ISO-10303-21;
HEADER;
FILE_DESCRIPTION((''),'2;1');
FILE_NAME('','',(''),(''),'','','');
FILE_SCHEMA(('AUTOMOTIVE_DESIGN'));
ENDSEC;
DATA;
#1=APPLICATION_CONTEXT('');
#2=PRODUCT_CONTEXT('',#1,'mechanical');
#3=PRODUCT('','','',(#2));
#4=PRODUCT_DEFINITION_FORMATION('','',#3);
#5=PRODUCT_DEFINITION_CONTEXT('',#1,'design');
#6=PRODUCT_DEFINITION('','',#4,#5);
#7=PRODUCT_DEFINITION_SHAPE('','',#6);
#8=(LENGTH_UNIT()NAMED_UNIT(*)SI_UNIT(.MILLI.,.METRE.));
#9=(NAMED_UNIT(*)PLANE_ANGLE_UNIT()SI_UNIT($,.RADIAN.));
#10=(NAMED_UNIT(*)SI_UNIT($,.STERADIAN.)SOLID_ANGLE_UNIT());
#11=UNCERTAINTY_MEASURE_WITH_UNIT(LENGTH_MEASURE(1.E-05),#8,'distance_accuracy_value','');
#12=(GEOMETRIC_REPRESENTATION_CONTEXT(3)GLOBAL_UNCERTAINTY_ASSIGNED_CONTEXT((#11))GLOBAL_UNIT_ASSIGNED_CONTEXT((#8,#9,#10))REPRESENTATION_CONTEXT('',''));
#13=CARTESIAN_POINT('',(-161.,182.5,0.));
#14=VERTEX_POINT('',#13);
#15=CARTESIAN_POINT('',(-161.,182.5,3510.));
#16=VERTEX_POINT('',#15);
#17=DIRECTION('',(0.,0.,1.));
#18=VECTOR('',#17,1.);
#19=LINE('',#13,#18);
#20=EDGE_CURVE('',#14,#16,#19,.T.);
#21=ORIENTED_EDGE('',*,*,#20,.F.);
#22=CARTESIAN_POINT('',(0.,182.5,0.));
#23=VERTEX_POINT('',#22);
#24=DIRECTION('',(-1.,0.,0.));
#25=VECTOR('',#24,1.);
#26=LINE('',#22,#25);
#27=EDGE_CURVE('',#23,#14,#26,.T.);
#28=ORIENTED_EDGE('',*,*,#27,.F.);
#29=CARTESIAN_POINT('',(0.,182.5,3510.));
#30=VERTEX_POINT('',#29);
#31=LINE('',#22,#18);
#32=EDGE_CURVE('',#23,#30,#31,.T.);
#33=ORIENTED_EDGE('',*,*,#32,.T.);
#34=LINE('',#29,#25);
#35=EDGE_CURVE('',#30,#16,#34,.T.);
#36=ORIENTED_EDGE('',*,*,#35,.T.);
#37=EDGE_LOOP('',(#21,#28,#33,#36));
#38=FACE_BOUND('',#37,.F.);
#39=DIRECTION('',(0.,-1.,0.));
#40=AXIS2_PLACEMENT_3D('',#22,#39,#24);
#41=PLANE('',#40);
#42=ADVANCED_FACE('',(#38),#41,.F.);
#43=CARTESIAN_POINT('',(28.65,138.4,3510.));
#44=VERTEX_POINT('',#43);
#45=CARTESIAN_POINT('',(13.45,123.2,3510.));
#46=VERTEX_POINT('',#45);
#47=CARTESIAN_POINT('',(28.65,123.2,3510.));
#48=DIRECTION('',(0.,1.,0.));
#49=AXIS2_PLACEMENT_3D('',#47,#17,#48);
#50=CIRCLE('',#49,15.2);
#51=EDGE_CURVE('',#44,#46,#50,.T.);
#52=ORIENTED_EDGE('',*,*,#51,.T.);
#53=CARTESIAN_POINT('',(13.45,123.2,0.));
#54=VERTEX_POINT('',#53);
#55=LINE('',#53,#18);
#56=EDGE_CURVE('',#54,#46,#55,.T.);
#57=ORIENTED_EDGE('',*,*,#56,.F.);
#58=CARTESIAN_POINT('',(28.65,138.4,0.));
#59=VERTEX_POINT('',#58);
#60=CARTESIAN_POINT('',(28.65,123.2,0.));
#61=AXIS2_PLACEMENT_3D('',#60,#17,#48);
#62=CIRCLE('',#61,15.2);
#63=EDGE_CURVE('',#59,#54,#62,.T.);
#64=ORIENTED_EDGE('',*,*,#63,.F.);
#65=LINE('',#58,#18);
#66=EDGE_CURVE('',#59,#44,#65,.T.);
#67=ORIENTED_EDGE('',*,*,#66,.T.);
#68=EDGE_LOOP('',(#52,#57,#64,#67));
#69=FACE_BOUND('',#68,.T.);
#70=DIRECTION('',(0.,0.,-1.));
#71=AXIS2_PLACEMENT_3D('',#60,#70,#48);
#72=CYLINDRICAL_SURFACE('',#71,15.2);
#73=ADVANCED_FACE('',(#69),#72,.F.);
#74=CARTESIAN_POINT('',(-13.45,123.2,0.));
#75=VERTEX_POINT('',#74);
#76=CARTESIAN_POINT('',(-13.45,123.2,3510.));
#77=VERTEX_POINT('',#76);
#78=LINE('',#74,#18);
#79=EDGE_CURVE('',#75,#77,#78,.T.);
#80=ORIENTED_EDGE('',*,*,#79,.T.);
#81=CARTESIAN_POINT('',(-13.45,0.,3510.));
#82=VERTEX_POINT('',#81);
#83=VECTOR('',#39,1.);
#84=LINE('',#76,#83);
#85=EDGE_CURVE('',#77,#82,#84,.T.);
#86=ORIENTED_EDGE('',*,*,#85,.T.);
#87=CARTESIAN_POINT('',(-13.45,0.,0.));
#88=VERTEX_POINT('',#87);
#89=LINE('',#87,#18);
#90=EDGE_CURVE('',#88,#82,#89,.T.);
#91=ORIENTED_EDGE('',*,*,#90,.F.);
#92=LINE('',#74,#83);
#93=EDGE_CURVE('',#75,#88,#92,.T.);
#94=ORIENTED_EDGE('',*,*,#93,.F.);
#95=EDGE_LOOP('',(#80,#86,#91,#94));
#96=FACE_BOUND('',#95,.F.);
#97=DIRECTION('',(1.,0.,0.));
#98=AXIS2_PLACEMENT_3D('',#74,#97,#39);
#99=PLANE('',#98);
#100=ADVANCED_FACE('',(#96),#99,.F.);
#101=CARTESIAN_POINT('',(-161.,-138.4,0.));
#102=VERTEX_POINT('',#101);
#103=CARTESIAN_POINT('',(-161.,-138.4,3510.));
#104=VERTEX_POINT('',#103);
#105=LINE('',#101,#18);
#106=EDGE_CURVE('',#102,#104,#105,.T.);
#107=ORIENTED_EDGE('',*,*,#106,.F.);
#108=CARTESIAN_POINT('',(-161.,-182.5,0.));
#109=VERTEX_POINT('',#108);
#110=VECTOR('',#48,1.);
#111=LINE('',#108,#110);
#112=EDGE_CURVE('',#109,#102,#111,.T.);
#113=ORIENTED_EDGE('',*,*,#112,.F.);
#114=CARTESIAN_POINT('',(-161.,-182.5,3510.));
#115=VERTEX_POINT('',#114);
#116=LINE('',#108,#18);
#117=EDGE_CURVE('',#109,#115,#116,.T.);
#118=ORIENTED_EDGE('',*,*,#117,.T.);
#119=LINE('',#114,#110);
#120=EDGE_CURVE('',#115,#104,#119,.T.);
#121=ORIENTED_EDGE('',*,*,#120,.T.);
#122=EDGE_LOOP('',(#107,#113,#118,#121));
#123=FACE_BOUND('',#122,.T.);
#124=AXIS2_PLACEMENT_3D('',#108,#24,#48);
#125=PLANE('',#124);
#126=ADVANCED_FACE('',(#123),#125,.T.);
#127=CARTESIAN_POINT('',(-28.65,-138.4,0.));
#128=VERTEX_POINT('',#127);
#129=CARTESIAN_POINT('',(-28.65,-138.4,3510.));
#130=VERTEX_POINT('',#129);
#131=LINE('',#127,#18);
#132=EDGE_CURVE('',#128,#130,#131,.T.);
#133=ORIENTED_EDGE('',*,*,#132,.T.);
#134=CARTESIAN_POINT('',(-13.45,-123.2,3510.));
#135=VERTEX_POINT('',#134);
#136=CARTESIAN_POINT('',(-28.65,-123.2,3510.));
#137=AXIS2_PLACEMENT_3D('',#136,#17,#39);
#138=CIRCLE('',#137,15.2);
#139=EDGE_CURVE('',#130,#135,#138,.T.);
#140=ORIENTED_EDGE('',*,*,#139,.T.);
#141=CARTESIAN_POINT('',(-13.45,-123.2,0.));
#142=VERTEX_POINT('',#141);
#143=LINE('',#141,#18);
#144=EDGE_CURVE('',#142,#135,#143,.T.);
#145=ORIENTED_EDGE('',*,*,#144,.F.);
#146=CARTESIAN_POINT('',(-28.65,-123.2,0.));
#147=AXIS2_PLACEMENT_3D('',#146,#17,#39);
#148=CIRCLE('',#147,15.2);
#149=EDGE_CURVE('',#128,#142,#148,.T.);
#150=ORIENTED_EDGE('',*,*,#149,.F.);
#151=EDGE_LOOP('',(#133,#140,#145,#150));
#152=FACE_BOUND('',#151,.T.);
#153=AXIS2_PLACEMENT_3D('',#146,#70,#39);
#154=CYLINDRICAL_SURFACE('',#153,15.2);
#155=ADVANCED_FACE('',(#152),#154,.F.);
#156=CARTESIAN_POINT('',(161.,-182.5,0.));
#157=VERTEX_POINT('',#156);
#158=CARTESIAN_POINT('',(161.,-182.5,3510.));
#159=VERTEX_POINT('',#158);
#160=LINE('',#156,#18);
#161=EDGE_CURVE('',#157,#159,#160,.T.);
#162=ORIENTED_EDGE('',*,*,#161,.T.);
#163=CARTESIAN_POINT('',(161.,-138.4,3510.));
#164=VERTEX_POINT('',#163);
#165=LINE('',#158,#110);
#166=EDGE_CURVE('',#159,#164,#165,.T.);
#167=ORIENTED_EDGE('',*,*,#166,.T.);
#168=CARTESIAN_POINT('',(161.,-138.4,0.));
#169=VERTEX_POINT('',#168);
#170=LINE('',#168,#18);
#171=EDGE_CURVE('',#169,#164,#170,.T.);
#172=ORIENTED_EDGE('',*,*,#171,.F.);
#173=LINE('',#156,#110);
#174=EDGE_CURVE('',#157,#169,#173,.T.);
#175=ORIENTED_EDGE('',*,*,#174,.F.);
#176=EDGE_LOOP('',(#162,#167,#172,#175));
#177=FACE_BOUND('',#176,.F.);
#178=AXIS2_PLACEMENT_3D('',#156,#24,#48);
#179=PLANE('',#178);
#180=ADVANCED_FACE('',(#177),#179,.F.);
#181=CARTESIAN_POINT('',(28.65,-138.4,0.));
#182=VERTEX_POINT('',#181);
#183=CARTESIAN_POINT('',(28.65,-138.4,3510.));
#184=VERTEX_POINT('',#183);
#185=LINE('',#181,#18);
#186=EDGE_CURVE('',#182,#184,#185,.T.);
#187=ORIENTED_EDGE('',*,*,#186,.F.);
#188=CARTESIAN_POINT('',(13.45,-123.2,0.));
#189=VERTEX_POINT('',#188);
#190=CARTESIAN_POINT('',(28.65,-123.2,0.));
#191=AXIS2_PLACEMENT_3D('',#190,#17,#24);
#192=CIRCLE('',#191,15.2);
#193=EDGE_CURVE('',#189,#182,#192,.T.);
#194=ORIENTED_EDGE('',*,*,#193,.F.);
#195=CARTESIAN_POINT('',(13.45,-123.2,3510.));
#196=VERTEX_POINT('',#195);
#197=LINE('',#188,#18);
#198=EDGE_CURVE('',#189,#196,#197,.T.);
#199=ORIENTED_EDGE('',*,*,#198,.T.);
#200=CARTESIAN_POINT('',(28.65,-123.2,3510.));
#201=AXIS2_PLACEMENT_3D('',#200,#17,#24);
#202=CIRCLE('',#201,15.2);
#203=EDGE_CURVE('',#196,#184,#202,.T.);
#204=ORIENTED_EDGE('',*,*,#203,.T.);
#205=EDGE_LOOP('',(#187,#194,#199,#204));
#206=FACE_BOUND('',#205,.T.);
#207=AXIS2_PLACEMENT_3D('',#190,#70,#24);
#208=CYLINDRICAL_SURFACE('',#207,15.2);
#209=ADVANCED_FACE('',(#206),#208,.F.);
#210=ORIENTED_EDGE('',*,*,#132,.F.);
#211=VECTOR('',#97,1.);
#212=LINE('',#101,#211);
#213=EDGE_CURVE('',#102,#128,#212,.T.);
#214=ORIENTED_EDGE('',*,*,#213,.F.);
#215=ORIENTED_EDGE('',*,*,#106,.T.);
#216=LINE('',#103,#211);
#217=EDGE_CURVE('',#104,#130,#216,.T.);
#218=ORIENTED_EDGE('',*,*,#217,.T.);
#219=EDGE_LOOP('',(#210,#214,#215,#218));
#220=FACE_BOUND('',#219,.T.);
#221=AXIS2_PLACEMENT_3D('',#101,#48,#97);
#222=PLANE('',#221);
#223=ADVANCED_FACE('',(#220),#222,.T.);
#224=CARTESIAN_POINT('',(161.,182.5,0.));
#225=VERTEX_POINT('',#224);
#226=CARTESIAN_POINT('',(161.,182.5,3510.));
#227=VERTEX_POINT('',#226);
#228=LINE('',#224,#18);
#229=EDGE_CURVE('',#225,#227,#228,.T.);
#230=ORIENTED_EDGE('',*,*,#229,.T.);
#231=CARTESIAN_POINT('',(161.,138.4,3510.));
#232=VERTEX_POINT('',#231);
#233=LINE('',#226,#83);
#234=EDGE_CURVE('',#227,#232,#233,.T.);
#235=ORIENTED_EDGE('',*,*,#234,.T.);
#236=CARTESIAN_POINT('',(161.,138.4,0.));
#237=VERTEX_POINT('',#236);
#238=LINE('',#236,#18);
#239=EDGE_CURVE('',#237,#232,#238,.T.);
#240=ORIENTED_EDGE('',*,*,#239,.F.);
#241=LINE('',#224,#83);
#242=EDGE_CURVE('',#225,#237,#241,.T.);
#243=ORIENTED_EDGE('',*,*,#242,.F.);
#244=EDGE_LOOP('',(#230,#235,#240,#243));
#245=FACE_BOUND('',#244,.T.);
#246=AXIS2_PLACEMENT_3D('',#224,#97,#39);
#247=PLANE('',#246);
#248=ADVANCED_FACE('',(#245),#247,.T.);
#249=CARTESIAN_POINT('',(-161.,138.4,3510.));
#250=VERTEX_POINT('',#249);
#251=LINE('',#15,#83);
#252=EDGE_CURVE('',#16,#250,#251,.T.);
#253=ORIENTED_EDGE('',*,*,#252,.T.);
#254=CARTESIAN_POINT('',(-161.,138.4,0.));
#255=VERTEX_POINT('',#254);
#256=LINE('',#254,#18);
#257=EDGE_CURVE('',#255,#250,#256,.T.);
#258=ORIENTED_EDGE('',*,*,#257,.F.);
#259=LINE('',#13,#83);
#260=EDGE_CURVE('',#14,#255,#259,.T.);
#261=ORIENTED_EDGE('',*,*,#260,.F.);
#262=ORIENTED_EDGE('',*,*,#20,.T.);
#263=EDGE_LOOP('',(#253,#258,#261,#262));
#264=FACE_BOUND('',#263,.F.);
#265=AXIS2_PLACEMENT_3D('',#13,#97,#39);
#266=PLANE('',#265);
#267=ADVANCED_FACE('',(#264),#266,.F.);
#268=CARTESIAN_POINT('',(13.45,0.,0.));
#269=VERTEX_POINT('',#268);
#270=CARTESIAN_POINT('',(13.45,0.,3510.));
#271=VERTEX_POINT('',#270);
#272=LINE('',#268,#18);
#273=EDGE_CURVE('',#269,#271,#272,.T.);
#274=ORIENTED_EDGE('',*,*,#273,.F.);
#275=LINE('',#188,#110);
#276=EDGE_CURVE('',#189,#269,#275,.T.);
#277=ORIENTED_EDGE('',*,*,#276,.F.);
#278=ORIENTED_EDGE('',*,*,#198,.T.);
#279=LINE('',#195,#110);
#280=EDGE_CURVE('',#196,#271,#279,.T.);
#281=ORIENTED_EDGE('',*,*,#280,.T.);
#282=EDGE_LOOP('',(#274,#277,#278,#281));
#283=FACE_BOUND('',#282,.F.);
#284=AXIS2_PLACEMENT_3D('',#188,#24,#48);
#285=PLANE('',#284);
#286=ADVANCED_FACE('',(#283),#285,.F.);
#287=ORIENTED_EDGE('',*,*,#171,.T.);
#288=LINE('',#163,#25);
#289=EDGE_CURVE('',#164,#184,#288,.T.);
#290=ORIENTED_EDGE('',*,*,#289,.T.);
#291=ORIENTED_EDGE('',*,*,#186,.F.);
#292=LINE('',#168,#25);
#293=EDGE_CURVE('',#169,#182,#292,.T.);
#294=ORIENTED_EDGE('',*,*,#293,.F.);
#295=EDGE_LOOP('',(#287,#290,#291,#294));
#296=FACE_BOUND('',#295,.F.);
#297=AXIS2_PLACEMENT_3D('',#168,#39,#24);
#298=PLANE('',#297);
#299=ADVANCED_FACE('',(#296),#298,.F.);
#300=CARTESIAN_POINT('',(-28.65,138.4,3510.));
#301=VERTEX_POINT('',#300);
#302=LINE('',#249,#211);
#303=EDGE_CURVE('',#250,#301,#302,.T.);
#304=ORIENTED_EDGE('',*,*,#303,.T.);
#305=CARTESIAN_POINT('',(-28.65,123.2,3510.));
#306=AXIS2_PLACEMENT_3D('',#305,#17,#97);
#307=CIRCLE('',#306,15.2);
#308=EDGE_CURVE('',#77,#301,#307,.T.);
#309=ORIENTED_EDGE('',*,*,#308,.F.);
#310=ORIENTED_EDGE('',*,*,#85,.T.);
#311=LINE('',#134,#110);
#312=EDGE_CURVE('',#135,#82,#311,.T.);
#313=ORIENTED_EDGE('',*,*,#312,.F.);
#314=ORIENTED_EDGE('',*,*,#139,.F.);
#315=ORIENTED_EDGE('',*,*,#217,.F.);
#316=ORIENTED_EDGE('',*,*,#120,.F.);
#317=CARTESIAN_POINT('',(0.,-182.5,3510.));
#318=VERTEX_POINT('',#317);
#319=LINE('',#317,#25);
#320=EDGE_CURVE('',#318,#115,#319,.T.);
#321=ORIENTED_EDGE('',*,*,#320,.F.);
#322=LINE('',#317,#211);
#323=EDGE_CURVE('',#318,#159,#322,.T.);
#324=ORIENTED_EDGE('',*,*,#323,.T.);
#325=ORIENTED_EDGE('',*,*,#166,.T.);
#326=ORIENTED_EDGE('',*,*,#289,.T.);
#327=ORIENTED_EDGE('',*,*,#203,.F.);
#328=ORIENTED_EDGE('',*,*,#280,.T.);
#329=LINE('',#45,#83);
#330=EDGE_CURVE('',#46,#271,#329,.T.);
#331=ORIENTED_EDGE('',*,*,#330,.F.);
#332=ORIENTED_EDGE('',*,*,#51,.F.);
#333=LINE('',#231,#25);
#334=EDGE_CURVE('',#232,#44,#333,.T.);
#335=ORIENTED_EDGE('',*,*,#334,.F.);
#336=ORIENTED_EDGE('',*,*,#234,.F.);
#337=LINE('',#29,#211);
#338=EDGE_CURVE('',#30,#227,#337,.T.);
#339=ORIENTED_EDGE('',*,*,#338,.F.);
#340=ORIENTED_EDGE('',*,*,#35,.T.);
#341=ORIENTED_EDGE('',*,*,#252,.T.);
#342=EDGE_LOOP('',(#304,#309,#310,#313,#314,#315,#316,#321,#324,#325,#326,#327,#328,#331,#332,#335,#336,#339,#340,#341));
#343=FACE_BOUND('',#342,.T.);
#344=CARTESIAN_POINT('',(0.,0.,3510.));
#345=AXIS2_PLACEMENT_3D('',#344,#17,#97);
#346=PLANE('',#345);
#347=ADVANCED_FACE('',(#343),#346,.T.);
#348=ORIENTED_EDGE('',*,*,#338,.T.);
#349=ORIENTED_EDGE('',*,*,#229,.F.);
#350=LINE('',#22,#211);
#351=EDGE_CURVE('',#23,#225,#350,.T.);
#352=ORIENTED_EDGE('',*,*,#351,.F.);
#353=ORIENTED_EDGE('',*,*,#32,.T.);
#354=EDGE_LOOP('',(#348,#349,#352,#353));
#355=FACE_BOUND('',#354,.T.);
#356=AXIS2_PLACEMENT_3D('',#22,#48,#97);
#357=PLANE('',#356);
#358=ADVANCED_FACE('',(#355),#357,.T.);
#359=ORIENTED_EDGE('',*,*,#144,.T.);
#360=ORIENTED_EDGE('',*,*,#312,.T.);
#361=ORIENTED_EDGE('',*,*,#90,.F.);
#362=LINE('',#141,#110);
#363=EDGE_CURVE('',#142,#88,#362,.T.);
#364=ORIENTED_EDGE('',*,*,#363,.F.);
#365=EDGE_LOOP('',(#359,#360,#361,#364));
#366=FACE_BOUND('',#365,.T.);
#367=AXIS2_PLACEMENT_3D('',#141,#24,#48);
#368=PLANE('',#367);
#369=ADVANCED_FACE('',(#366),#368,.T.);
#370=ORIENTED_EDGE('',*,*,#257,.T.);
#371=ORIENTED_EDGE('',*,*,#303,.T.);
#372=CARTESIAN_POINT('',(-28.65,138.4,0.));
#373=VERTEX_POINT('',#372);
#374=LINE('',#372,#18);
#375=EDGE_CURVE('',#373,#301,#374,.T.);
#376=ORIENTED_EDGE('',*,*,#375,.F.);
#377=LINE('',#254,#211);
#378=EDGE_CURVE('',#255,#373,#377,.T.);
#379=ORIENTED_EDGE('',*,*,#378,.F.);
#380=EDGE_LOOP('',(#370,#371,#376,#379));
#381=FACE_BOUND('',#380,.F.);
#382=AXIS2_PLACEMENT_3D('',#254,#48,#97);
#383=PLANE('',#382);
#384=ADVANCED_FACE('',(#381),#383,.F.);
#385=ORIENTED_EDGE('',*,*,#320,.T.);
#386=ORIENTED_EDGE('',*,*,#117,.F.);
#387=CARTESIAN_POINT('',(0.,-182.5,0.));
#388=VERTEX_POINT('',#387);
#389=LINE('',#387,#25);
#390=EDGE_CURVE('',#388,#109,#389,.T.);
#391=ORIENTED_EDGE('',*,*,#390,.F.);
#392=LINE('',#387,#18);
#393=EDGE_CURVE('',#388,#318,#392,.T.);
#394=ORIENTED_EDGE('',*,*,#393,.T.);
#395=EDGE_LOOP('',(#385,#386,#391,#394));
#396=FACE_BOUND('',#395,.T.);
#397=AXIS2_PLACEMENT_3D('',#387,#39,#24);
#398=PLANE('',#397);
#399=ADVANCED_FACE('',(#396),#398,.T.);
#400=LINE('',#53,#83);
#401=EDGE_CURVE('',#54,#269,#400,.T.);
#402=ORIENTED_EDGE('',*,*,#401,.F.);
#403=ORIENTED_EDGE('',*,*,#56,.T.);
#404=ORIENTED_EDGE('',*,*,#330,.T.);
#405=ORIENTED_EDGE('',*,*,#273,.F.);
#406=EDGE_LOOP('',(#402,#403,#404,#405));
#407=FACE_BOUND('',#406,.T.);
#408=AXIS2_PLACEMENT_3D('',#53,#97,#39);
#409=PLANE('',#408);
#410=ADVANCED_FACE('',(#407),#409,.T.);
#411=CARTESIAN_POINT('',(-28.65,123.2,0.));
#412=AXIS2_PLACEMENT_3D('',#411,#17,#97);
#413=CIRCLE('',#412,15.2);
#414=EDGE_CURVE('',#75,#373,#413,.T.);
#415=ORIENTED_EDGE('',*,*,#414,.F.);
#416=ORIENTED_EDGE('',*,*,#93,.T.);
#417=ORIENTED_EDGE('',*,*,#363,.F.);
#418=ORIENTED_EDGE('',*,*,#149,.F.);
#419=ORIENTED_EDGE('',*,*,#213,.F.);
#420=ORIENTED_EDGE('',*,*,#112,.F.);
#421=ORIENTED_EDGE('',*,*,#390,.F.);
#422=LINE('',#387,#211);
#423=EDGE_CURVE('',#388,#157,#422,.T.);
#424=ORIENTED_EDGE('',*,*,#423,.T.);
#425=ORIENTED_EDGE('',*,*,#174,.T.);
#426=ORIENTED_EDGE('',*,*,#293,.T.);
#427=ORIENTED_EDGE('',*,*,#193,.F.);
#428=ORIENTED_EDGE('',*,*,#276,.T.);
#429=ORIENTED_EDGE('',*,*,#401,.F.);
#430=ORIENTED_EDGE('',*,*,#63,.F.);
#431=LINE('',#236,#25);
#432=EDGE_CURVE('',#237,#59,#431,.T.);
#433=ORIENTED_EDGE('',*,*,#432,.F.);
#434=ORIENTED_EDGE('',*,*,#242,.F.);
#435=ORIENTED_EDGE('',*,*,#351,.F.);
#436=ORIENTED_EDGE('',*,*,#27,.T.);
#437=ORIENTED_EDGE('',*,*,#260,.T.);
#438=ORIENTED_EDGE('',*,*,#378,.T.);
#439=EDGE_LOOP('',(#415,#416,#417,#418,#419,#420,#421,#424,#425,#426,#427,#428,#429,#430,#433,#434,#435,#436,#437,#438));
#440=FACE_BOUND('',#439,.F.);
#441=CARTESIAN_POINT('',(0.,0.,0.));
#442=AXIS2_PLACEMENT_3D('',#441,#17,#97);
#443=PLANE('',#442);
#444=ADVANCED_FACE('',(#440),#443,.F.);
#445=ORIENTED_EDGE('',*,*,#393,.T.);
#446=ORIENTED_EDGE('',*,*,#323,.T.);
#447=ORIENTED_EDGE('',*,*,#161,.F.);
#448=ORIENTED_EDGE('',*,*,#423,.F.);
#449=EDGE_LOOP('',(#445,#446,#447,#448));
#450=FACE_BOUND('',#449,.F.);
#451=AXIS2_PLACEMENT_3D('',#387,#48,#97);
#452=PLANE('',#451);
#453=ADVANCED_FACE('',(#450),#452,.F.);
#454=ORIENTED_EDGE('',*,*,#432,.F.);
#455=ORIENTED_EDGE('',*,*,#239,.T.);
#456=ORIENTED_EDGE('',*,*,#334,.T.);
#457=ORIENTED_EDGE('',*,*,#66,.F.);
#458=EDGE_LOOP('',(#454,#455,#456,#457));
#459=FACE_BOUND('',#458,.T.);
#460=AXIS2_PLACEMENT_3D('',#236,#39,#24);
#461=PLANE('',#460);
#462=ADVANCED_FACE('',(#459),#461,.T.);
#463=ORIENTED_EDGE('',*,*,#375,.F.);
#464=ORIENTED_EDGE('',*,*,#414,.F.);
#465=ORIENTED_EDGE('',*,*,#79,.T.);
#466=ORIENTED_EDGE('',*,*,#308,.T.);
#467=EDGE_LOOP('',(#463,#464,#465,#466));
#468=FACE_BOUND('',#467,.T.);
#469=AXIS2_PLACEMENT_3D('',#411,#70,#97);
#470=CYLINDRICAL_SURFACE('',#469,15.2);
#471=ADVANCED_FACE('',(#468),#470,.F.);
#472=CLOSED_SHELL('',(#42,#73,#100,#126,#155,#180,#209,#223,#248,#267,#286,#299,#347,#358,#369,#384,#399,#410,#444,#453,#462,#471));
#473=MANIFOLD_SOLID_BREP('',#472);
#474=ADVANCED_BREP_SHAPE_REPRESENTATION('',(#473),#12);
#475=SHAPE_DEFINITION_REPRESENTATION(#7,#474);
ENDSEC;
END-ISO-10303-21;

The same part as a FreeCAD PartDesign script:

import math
import FreeCAD as App
import Part
import Sketcher

doc = App.newDocument("Part")
body = doc.addObject("PartDesign::Body", "Body")

# Sketch on XY plane
sketch1 = body.newObject("Sketcher::SketchObject", "Sketch")
sketch1.AttachmentSupport = (doc.getObject("XY_Plane"), [""])
sketch1.MapMode = "FlatFace"
sketch1.addGeometry(Part.LineSegment(App.Vector(-161, -138, 0), App.Vector(-161, -182, 0)), False)
sketch1.addGeometry(Part.LineSegment(App.Vector(-161, -182, 0), App.Vector(161, -182, 0)), False)
sketch1.addGeometry(Part.LineSegment(App.Vector(161, -182, 0), App.Vector(161, -138, 0)), False)
sketch1.addGeometry(Part.LineSegment(App.Vector(161, -138, 0), App.Vector(29, -138, 0)), False)
sketch1.addGeometry(Part.ArcOfCircle(Part.Circle(App.Vector(29, -123, 0), App.Vector(0, 0, 1), 15), math.radians(180), math.radians(270)), False)
sketch1.addGeometry(Part.LineSegment(App.Vector(13, -123, 0), App.Vector(13, 123, 0)), False)
sketch1.addGeometry(Part.ArcOfCircle(Part.Circle(App.Vector(29, 123, 0), App.Vector(0, 0, 1), 15), math.radians(90), math.radians(180)), False)
sketch1.addGeometry(Part.LineSegment(App.Vector(29, 138, 0), App.Vector(161, 138, 0)), False)
sketch1.addGeometry(Part.LineSegment(App.Vector(161, 138, 0), App.Vector(161, 182, 0)), False)
sketch1.addGeometry(Part.LineSegment(App.Vector(161, 182, 0), App.Vector(-161, 182, 0)), False)
sketch1.addGeometry(Part.LineSegment(App.Vector(-161, 182, 0), App.Vector(-161, 138, 0)), False)
sketch1.addGeometry(Part.LineSegment(App.Vector(-161, 138, 0), App.Vector(-29, 138, 0)), False)
sketch1.addGeometry(Part.ArcOfCircle(Part.Circle(App.Vector(-29, 123, 0), App.Vector(0, 0, 1), 15), math.radians(0), math.radians(90)), False)
sketch1.addGeometry(Part.LineSegment(App.Vector(-13, 123, 0), App.Vector(-13, -123, 0)), False)
sketch1.addGeometry(Part.ArcOfCircle(Part.Circle(App.Vector(-29, -123, 0), App.Vector(0, 0, 1), 15), math.radians(-90), math.radians(0)), False)
sketch1.addGeometry(Part.LineSegment(App.Vector(-29, -138, 0), App.Vector(-161, -138, 0)), False)
sketch1.addConstraint(Sketcher.Constraint("Coincident", 0, 2, 1, 1))
sketch1.addConstraint(Sketcher.Constraint("Coincident", 1, 2, 2, 1))
sketch1.addConstraint(Sketcher.Constraint("Coincident", 2, 2, 3, 1))
sketch1.addConstraint(Sketcher.Constraint("Tangent", 3, 2, 4, 2))
sketch1.addConstraint(Sketcher.Constraint("Tangent", 4, 1, 5, 1))
sketch1.addConstraint(Sketcher.Constraint("Tangent", 5, 2, 6, 2))
sketch1.addConstraint(Sketcher.Constraint("Tangent", 6, 1, 7, 1))
sketch1.addConstraint(Sketcher.Constraint("Coincident", 7, 2, 8, 1))
sketch1.addConstraint(Sketcher.Constraint("Coincident", 8, 2, 9, 1))
sketch1.addConstraint(Sketcher.Constraint("Coincident", 9, 2, 10, 1))
sketch1.addConstraint(Sketcher.Constraint("Coincident", 10, 2, 11, 1))
sketch1.addConstraint(Sketcher.Constraint("Tangent", 11, 2, 12, 2))
sketch1.addConstraint(Sketcher.Constraint("Tangent", 12, 1, 13, 1))
sketch1.addConstraint(Sketcher.Constraint("Tangent", 13, 2, 14, 2))
sketch1.addConstraint(Sketcher.Constraint("Tangent", 14, 1, 15, 1))
sketch1.addConstraint(Sketcher.Constraint("Coincident", 15, 2, 0, 1))
sketch1.addConstraint(Sketcher.Constraint("Vertical", 0))
sketch1.addConstraint(Sketcher.Constraint("Horizontal", 1))
sketch1.addConstraint(Sketcher.Constraint("Vertical", 2))
sketch1.addConstraint(Sketcher.Constraint("Horizontal", 3))
sketch1.addConstraint(Sketcher.Constraint("Vertical", 5))
sketch1.addConstraint(Sketcher.Constraint("Horizontal", 7))
sketch1.addConstraint(Sketcher.Constraint("Vertical", 8))
sketch1.addConstraint(Sketcher.Constraint("Horizontal", 9))
sketch1.addConstraint(Sketcher.Constraint("Vertical", 10))
sketch1.addConstraint(Sketcher.Constraint("Horizontal", 11))
sketch1.addConstraint(Sketcher.Constraint("Vertical", 13))
sketch1.addConstraint(Sketcher.Constraint("Horizontal", 15))
sketch1.addConstraint(Sketcher.Constraint("Equal", 4, 6))
sketch1.addConstraint(Sketcher.Constraint("Equal", 6, 12))
sketch1.addConstraint(Sketcher.Constraint("Equal", 12, 14))
sketch1.addConstraint(Sketcher.Constraint("Symmetric", 4, 3, 12, 3, -1, 1))
sketch1.addConstraint(Sketcher.Constraint("Symmetric", 0, 2, 8, 2, -1, 1))
sketch1.addConstraint(Sketcher.Constraint("Symmetric", 7, 2, 10, 2, -2))
sketch1.addConstraint(Sketcher.Constraint("Symmetric", 2, 2, 15, 2, -2))
sketch1.addConstraint(Sketcher.Constraint("Radius", 4, 15.2))
sketch1.addConstraint(Sketcher.Constraint("DistanceY", 0, 2, 0, 1, 44.1))
sketch1.addConstraint(Sketcher.Constraint("DistanceX", 0, 2, -1, 1, 161.0))
sketch1.addConstraint(Sketcher.Constraint("DistanceY", 0, 2, -1, 1, 182.5))
sketch1.addConstraint(Sketcher.Constraint("DistanceX", -1, 1, 4, 1, 13.45))
pad1 = body.newObject("PartDesign::Pad", "Pad")
pad1.Profile = sketch1
pad1.Length = 3510

doc.recompute()
